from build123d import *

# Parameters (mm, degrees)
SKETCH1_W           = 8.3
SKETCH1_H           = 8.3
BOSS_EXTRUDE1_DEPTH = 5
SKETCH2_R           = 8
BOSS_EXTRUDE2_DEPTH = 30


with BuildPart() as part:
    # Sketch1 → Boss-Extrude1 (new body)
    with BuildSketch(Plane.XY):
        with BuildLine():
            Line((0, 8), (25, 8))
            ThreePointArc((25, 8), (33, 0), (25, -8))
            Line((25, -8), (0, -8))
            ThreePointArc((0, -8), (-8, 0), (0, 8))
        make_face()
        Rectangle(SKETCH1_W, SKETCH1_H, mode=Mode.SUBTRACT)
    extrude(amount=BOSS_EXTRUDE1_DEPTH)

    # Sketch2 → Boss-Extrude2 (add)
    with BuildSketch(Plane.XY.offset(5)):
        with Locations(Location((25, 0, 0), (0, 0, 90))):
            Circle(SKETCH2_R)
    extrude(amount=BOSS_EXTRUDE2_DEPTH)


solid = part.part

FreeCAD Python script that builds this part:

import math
import FreeCAD as App
import Part
import Sketcher
from FreeCAD import Vector


def add_polygon(sketch, points):
    """Adds a closed chain of lines whose ends are joined by coincident constraints."""
    first, n = sketch.GeometryCount, len(points)
    for a, b in zip(points, points[1:] + points[:1]):
        sketch.addGeometry(Part.LineSegment(App.Vector(*a, 0), App.Vector(*b, 0)), False)
    for i in range(n):
        sketch.addConstraint(Sketcher.Constraint("Coincident", first + i, 2, first + (i + 1) % n, 1))

doc = App.newDocument("Part")
params = doc.addObject("Spreadsheet::Sheet", "Params")
for row, (alias, value) in enumerate([
    ("sketch1_radius", "8 mm"),
    ("sketch1_width", "25 mm"),
    ("sketch1_width2", "8.3 mm"),
    ("pad1_length", "5 mm"),
    ("sketch2_diameter", "16 mm"),
    ("pad2_length", "30 mm"),
], start=1):
    params.set(f"A{row}", alias)
    params.set(f"B{row}", "=" + value)
    params.setAlias(f"B{row}", alias)

body = doc.addObject("PartDesign::Body", "Body")

sketch1 = body.newObject("Sketcher::SketchObject", "Sketch")
sketch1.AttachmentSupport = (doc.getObject("XY_Plane"), [""])
sketch1.MapMode = "FlatFace"
sketch1.addGeometry(Part.LineSegment(Vector(25, 8, 0), Vector(0, 8, 0)), False)
sketch1.addGeometry(Part.ArcOfCircle(Part.Circle(Vector(0, 0, 0), Vector(0, 0, 1), 8), math.radians(90), math.radians(270)), False)
sketch1.addGeometry(Part.LineSegment(Vector(0, -8, 0), Vector(25, -8, 0)), False)
sketch1.addGeometry(Part.ArcOfCircle(Part.Circle(Vector(25, 0, 0), Vector(0, 0, 1), 8), math.radians(-90), math.radians(90)), False)
add_polygon(sketch1, [(-4, -4), (-4, 4), (4, 4), (4, -4)])
sketch1.addConstraint([
    Sketcher.Constraint("Tangent", 0, 2, 1, 1),
    Sketcher.Constraint("Tangent", 1, 2, 2, 1),
    Sketcher.Constraint("Tangent", 2, 2, 3, 1),
    Sketcher.Constraint("Tangent", 3, 2, 0, 1),
    Sketcher.Constraint("Horizontal", 0),
    Sketcher.Constraint("Horizontal", 2),
    Sketcher.Constraint("Vertical", 4),
    Sketcher.Constraint("Horizontal", 5),
    Sketcher.Constraint("Vertical", 6),
    Sketcher.Constraint("Horizontal", 7),
    Sketcher.Constraint("Coincident", 1, 3, -1, 1),
    Sketcher.Constraint("Symmetric", 4, 2, 6, 2, -1, 1),
    Sketcher.Constraint("Equal", 7, 4),
    Sketcher.Constraint("Radius", 1, 8.0),
    Sketcher.Constraint("DistanceX", 0, 2, 0, 1, 25.0),
    Sketcher.Constraint("DistanceX", 5, 1, 5, 2, 8.3),
])
sketch1.setExpression("Constraints[17]", "Params.sketch1_radius")
sketch1.setExpression("Constraints[18]", "Params.sketch1_width")
sketch1.setExpression("Constraints[19]", "Params.sketch1_width2")
pad1 = body.newObject("PartDesign::Pad", "Pad")
pad1.Profile = sketch1
pad1.setExpression("Length", "Params.pad1_length")

sketch2 = body.newObject("Sketcher::SketchObject", "Sketch001")
sketch2.AttachmentSupport = (doc.getObject("XY_Plane"), [""])
sketch2.MapMode = "FlatFace"
sketch2.AttachmentOffset = App.Placement(Vector(0, 0, 5), App.Rotation())
sketch2.addGeometry(Part.Circle(Vector(25, 0, 0), Vector(0, 0, 1), 8), False)
sketch2.addConstraint([
    Sketcher.Constraint("PointOnObject", 0, 3, -1),
    Sketcher.Constraint("Diameter", 0, 16.0),
    Sketcher.Constraint("DistanceX", -1, 1, 0, 3, 25.0),
])
sketch2.setExpression("Constraints[1]", "Params.sketch2_diameter")
pad2 = body.newObject("PartDesign::Pad", "Pad001")
pad2.Profile = sketch2
pad2.setExpression("Length", "Params.pad2_length")

doc.recompute()
